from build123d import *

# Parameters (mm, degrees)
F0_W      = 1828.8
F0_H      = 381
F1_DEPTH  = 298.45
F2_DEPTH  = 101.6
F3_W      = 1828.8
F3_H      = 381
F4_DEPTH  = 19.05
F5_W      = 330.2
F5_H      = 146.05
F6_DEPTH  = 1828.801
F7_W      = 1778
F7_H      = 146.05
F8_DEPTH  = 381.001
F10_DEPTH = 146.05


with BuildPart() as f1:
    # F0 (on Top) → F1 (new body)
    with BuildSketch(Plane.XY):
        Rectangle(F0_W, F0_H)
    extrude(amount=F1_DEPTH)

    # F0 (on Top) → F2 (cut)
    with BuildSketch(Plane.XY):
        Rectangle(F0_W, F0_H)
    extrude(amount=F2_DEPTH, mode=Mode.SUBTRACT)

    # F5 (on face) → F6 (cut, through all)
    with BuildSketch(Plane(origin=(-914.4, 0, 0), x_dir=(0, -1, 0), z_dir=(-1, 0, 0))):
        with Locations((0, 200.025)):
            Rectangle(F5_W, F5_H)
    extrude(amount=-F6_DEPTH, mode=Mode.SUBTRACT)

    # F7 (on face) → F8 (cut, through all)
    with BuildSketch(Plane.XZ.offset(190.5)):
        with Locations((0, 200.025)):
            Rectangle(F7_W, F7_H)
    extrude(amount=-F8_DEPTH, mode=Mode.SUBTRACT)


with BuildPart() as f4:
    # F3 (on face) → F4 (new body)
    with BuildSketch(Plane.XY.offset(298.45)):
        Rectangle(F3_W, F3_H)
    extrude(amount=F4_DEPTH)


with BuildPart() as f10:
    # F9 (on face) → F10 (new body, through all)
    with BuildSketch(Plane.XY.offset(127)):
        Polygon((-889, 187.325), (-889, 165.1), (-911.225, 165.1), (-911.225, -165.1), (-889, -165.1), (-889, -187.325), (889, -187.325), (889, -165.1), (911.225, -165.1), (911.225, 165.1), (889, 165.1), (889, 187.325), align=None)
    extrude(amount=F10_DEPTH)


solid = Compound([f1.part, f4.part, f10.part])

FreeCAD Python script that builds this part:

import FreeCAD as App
import Part
import Sketcher

V = App.Vector
Q = App.Units.Quantity

doc = App.newDocument("Part")
params = doc.addObject("Spreadsheet::Sheet", "Params")
for row, (alias, value) in enumerate([
    ("sketch1_width", "72 in"),
    ("sketch1_height", "15 in"),
    ("pad1_length", "11.75 in"),
    ("sketch2_width", "72 in"),
    ("sketch2_height", "15 in"),
    ("pocket1_length", "4 in"),
    ("sketch3_width", "13 in"),
    ("sketch3_height", "5.75 in"),
    ("sketch4_width", "70 in"),
    ("sketch4_height", "5.75 in"),
    ("sketch5_width", "72 in"),
    ("sketch5_height", "15 in"),
    ("pad2_length", "0.75 in"),
    ("sketch6_width", "70 in"),
    ("sketch6_height", "13 in"),
    ("sketch6_width2", "0.875 in"),
    ("pad3_length", "5.75 in"),
], start=1):
    params.set(f"A{row}", alias)
    params.set(f"B{row}", "=" + value)
    params.setAlias(f"B{row}", alias)

body = doc.addObject("PartDesign::Body", "Body")

# Sketch on XY plane
sketch1 = body.newObject("Sketcher::SketchObject", "Sketch")
sketch1.AttachmentSupport = (doc.getObject("XY_Plane"), [""])
sketch1.MapMode = "FlatFace"
sketch1.addGeometry([
    Part.LineSegment(V(-914, 190, 0), V(-914, -190, 0)),
    Part.LineSegment(V(-914, -190, 0), V(914, -190, 0)),
    Part.LineSegment(V(914, -190, 0), V(914, 190, 0)),
    Part.LineSegment(V(914, 190, 0), V(-914, 190, 0)),
], False)
sketch1.addConstraint([
    Sketcher.Constraint("Coincident", 0, 2, 1, 1),
    Sketcher.Constraint("Coincident", 1, 2, 2, 1),
    Sketcher.Constraint("Coincident", 2, 2, 3, 1),
    Sketcher.Constraint("Coincident", 3, 2, 0, 1),
    Sketcher.Constraint("Vertical", 0),
    Sketcher.Constraint("Horizontal", 1),
    Sketcher.Constraint("Vertical", 2),
    Sketcher.Constraint("Horizontal", 3),
    Sketcher.Constraint("Symmetric", 0, 2, 2, 2, -1, 1),
    Sketcher.Constraint("DistanceX", 1, 1, 1, 2, Q("72 in")),
    Sketcher.Constraint("DistanceY", 0, 2, 0, 1, Q("15 in")),
])
sketch1.setExpression("Constraints[9]", "Params.sketch1_width")
sketch1.setExpression("Constraints[10]", "Params.sketch1_height")
pad1 = body.newObject("PartDesign::Pad", "Pad")
pad1.Profile = sketch1
pad1.setExpression("Length", "Params.pad1_length")

# Sketch on XY plane
sketch2 = body.newObject("Sketcher::SketchObject", "Sketch001")
sketch2.AttachmentSupport = (doc.getObject("XY_Plane"), [""])
sketch2.MapMode = "FlatFace"
sketch2.addGeometry([
    Part.LineSegment(V(-914, 190, 0), V(-914, -190, 0)),
    Part.LineSegment(V(-914, -190, 0), V(914, -190, 0)),
    Part.LineSegment(V(914, -190, 0), V(914, 190, 0)),
    Part.LineSegment(V(914, 190, 0), V(-914, 190, 0)),
], False)
sketch2.addConstraint([
    Sketcher.Constraint("Coincident", 0, 2, 1, 1),
    Sketcher.Constraint("Coincident", 1, 2, 2, 1),
    Sketcher.Constraint("Coincident", 2, 2, 3, 1),
    Sketcher.Constraint("Coincident", 3, 2, 0, 1),
    Sketcher.Constraint("Vertical", 0),
    Sketcher.Constraint("Horizontal", 1),
    Sketcher.Constraint("Vertical", 2),
    Sketcher.Constraint("Horizontal", 3),
    Sketcher.Constraint("Symmetric", 0, 2, 2, 2, -1, 1),
    Sketcher.Constraint("DistanceX", 1, 1, 1, 2, Q("72 in")),
    Sketcher.Constraint("DistanceY", 0, 2, 0, 1, Q("15 in")),
])
sketch2.setExpression("Constraints[9]", "Params.sketch2_width")
sketch2.setExpression("Constraints[10]", "Params.sketch2_height")
pocket1 = body.newObject("PartDesign::Pocket", "Pocket")
pocket1.Profile = sketch2
pocket1.setExpression("Length", "Params.pocket1_length")
pocket1.Reversed = True

# Sketch on YZ plane
sketch3 = body.newObject("Sketcher::SketchObject", "Sketch002")
sketch3.AttachmentSupport = (doc.getObject("YZ_Plane"), [""])
sketch3.MapMode = "FlatFace"
sketch3.AttachmentOffset = App.Placement(V(0, 0, -36 * 25.4), App.Rotation())
sketch3.addGeometry([
    Part.LineSegment(V(165, 273, 0), V(165, 127, 0)),
    Part.LineSegment(V(165, 127, 0), V(-165, 127, 0)),
    Part.LineSegment(V(-165, 127, 0), V(-165, 273, 0)),
    Part.LineSegment(V(-165, 273, 0), V(165, 273, 0)),
], False)
sketch3.addConstraint([
    Sketcher.Constraint("Coincident", 0, 2, 1, 1),
    Sketcher.Constraint("Coincident", 1, 2, 2, 1),
    Sketcher.Constraint("Coincident", 2, 2, 3, 1),
    Sketcher.Constraint("Coincident", 3, 2, 0, 1),
    Sketcher.Constraint("Vertical", 0),
    Sketcher.Constraint("Horizontal", 1),
    Sketcher.Constraint("Vertical", 2),
    Sketcher.Constraint("Horizontal", 3),
    Sketcher.Constraint("DistanceX", 1, 2, 1, 1, Q("13 in")),
    Sketcher.Constraint("DistanceY", -1, 1, 0, 2, Q("5 in")),
    Sketcher.Constraint("DistanceY", 0, 2, 0, 1, Q("5.75 in")),
    Sketcher.Constraint("DistanceX", -1, 1, 0, 2, Q("6.5 in")),
])
sketch3.setExpression("Constraints[8]", "Params.sketch3_width")
sketch3.setExpression("Constraints[10]", "Params.sketch3_height")
pocket2 = body.newObject("PartDesign::Pocket", "Pocket001")
pocket2.Profile = sketch3
pocket2.Type = "ThroughAll"
pocket2.Reversed = True

# Sketch on XZ plane
sketch4 = body.newObject("Sketcher::SketchObject", "Sketch003")
sketch4.AttachmentSupport = (doc.getObject("XZ_Plane"), [""])
sketch4.MapMode = "FlatFace"
sketch4.AttachmentOffset = App.Placement(V(0, 0, 7.5 * 25.4), App.Rotation())
sketch4.addGeometry([
    Part.LineSegment(V(-889, 273, 0), V(-889, 127, 0)),
    Part.LineSegment(V(-889, 127, 0), V(889, 127, 0)),
    Part.LineSegment(V(889, 127, 0), V(889, 273, 0)),
    Part.LineSegment(V(889, 273, 0), V(-889, 273, 0)),
], False)
sketch4.addConstraint([
    Sketcher.Constraint("Coincident", 0, 2, 1, 1),
    Sketcher.Constraint("Coincident", 1, 2, 2, 1),
    Sketcher.Constraint("Coincident", 2, 2, 3, 1),
    Sketcher.Constraint("Coincident", 3, 2, 0, 1),
    Sketcher.Constraint("Vertical", 0),
    Sketcher.Constraint("Horizontal", 1),
    Sketcher.Constraint("Vertical", 2),
    Sketcher.Constraint("Horizontal", 3),
    Sketcher.Constraint("DistanceX", 1, 1, 1, 2, Q("70 in")),
    Sketcher.Constraint("DistanceX", 0, 2, -1, 1, Q("35 in")),
    Sketcher.Constraint("DistanceY", -1, 1, 0, 2, Q("5 in")),
    Sketcher.Constraint("DistanceY", 0, 2, 0, 1, Q("5.75 in")),
])
sketch4.setExpression("Constraints[8]", "Params.sketch4_width")
sketch4.setExpression("Constraints[11]", "Params.sketch4_height")
pocket3 = body.newObject("PartDesign::Pocket", "Pocket002")
pocket3.Profile = sketch4
pocket3.Type = "ThroughAll"
body2 = doc.addObject("PartDesign::Body", "Body001")

# Sketch on XY plane
sketch5 = body2.newObject("Sketcher::SketchObject", "Sketch004")
sketch5.AttachmentSupport = (doc.getObject("XY_Plane001"), [""])
sketch5.MapMode = "FlatFace"
sketch5.AttachmentOffset = App.Placement(V(0, 0, 11.75 * 25.4), App.Rotation())
sketch5.addGeometry([
    Part.LineSegment(V(-914, 190, 0), V(-914, -190, 0)),
    Part.LineSegment(V(-914, -190, 0), V(914, -190, 0)),
    Part.LineSegment(V(914, -190, 0), V(914, 190, 0)),
    Part.LineSegment(V(914, 190, 0), V(-914, 190, 0)),
], False)
sketch5.addConstraint([
    Sketcher.Constraint("Coincident", 0, 2, 1, 1),
    Sketcher.Constraint("Coincident", 1, 2, 2, 1),
    Sketcher.Constraint("Coincident", 2, 2, 3, 1),
    Sketcher.Constraint("Coincident", 3, 2, 0, 1),
    Sketcher.Constraint("Vertical", 0),
    Sketcher.Constraint("Horizontal", 1),
    Sketcher.Constraint("Vertical", 2),
    Sketcher.Constraint("Horizontal", 3),
    Sketcher.Constraint("Symmetric", 0, 2, 2, 2, -1, 1),
    Sketcher.Constraint("DistanceX", 1, 1, 1, 2, Q("72 in")),
    Sketcher.Constraint("DistanceY", 0, 2, 0, 1, Q("15 in")),
])
sketch5.setExpression("Constraints[9]", "Params.sketch5_width")
sketch5.setExpression("Constraints[10]", "Params.sketch5_height")
pad2 = body2.newObject("PartDesign::Pad", "Pad001")
pad2.Profile = sketch5
pad2.setExpression("Length", "Params.pad2_length")
body3 = doc.addObject("PartDesign::Body", "Body002")

# Sketch on XY plane
sketch6 = body3.newObject("Sketcher::SketchObject", "Sketch005")
sketch6.AttachmentSupport = (doc.getObject("XY_Plane002"), [""])
sketch6.MapMode = "FlatFace"
sketch6.AttachmentOffset = App.Placement(V(0, 0, 5 * 25.4), App.Rotation())
sketch6.addGeometry([
    Part.LineSegment(V(-889, 187, 0), V(-889, 165, 0)),  # 0
    Part.LineSegment(V(-889, 165, 0), V(-911, 165, 0)),  # 1
    Part.LineSegment(V(-911, 165, 0), V(-911, -165, 0)),  # 2
    Part.LineSegment(V(-911, -165, 0), V(-889, -165, 0)),  # 3
    Part.LineSegment(V(-889, -165, 0), V(-889, -187, 0)),  # 4
    Part.LineSegment(V(-889, -187, 0), V(889, -187, 0)),  # 5
    Part.LineSegment(V(889, -187, 0), V(889, -165, 0)),  # 6
    Part.LineSegment(V(889, -165, 0), V(911, -165, 0)),  # 7
    Part.LineSegment(V(911, -165, 0), V(911, 165, 0)),  # 8
    Part.LineSegment(V(911, 165, 0), V(889, 165, 0)),  # 9
    Part.LineSegment(V(889, 165, 0), V(889, 187, 0)),  # 10
    Part.LineSegment(V(889, 187, 0), V(-889, 187, 0)),  # 11
], False)
sketch6.addConstraint([
    Sketcher.Constraint("Coincident", 0, 2, 1, 1),
    Sketcher.Constraint("Coincident", 1, 2, 2, 1),
    Sketcher.Constraint("Coincident", 2, 2, 3, 1),
    Sketcher.Constraint("Coincident", 3, 2, 4, 1),
    Sketcher.Constraint("Coincident", 4, 2, 5, 1),
    Sketcher.Constraint("Coincident", 5, 2, 6, 1),
    Sketcher.Constraint("Coincident", 6, 2, 7, 1),
    Sketcher.Constraint("Coincident", 7, 2, 8, 1),
    Sketcher.Constraint("Coincident", 8, 2, 9, 1),
    Sketcher.Constraint("Coincident", 9, 2, 10, 1),
    Sketcher.Constraint("Coincident", 10, 2, 11, 1),
    Sketcher.Constraint("Coincident", 11, 2, 0, 1),
    Sketcher.Constraint("Vertical", 0),
    Sketcher.Constraint("Horizontal", 1),
    Sketcher.Constraint("Vertical", 2),
    Sketcher.Constraint("Horizontal", 3),
    Sketcher.Constraint("Vertical", 4),
    Sketcher.Constraint("Horizontal", 5),
    Sketcher.Constraint("Vertical", 6),
    Sketcher.Constraint("Horizontal", 7),
    Sketcher.Constraint("Vertical", 8),
    Sketcher.Constraint("Horizontal", 9),
    Sketcher.Constraint("Vertical", 10),
    Sketcher.Constraint("Horizontal", 11),
    Sketcher.Constraint("Symmetric", 0, 2, 6, 2, -1, 1),
    Sketcher.Constraint("Symmetric", 2, 2, 8, 2, -1, 1),
    Sketcher.Constraint("Symmetric", 4, 2, 10, 2, -1, 1),
    Sketcher.Constraint("Symmetric", 3, 2, 6, 2, -2),
    Sketcher.Constraint("Equal", 9, 0),
    Sketcher.Constraint("DistanceX", 5, 1, 5, 2, Q("70 in")),
    Sketcher.Constraint("DistanceY", 2, 2, 2, 1, Q("13 in")),
    Sketcher.Constraint("DistanceX", 1, 2, 1, 1, Q("0.875 in")),
])
sketch6.setExpression("Constraints[29]", "Params.sketch6_width")
sketch6.setExpression("Constraints[30]", "Params.sketch6_height")
sketch6.setExpression("Constraints[31]", "Params.sketch6_width2")
pad3 = body3.newObject("PartDesign::Pad", "Pad002")
pad3.Profile = sketch6
pad3.setExpression("Length", "Params.pad3_length")

doc.recompute()
